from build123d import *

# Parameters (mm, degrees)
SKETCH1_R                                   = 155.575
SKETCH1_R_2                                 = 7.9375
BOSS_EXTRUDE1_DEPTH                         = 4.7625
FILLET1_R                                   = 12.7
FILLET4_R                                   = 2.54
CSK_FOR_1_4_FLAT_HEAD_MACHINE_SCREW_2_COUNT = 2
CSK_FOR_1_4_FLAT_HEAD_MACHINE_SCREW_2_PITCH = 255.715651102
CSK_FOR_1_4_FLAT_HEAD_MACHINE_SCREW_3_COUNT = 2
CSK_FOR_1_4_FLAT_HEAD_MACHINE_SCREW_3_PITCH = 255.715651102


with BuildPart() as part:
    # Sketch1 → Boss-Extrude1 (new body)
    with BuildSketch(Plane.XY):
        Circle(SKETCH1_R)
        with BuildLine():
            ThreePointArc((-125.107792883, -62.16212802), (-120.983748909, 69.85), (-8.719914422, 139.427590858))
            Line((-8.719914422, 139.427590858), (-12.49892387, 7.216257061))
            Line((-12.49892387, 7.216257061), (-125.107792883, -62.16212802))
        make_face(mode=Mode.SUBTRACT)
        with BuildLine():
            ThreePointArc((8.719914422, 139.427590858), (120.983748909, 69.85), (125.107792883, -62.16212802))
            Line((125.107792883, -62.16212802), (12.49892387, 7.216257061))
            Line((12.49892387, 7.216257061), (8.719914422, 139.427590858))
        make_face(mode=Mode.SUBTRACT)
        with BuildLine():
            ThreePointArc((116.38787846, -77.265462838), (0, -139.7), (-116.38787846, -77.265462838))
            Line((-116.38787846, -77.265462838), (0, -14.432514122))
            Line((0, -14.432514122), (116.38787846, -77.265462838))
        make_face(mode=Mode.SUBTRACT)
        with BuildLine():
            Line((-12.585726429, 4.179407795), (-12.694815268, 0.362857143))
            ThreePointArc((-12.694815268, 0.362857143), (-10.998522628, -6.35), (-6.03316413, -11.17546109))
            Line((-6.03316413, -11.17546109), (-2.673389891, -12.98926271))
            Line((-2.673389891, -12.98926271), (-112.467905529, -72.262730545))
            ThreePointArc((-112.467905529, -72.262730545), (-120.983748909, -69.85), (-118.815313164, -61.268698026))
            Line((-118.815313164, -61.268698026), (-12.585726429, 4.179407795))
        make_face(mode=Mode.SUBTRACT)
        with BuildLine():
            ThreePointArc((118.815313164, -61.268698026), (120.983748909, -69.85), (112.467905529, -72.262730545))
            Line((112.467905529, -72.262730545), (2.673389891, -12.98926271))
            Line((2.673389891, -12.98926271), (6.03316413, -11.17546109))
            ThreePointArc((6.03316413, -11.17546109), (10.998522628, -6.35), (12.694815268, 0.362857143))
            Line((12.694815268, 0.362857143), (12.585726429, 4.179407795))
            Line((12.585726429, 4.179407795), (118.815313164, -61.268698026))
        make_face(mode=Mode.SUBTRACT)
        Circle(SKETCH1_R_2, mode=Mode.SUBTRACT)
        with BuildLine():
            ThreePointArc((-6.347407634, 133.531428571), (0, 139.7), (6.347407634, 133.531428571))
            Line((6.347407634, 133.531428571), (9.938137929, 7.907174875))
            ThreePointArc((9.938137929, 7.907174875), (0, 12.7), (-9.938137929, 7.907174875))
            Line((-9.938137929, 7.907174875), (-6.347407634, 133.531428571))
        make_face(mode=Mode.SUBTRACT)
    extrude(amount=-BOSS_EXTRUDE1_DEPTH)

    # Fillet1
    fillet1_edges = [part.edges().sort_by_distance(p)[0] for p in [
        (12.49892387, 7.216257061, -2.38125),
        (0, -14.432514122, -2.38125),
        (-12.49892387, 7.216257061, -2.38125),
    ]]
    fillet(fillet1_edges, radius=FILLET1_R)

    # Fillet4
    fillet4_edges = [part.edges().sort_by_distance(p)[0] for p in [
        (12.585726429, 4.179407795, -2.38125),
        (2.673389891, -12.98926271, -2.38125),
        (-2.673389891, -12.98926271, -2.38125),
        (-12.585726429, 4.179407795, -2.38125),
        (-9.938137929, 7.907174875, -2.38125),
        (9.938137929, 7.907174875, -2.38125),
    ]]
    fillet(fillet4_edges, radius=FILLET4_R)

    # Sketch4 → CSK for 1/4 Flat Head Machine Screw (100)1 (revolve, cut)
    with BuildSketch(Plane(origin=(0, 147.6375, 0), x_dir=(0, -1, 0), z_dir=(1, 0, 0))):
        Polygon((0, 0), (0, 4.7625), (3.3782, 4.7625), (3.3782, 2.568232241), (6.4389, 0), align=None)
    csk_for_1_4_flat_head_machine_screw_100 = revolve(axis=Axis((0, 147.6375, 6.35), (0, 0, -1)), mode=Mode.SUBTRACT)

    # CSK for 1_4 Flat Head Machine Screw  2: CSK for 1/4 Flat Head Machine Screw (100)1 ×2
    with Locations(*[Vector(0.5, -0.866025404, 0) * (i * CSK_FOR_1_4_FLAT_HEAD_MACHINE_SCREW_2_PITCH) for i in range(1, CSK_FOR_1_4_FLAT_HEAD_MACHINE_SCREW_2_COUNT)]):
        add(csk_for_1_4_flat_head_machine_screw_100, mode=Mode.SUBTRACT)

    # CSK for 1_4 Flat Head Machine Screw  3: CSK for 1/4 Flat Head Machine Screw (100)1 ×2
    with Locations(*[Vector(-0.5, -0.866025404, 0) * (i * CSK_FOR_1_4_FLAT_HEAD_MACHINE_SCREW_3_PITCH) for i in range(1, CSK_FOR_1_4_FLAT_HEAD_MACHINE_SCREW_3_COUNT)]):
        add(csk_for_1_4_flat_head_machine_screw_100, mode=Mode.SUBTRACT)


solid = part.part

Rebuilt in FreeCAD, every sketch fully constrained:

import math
import FreeCAD as App
import Part
import Sketcher
Q = App.Units.Quantity


def edges_at(feature, points):
    """Names of the edges that pass closest to the given points."""
    edges = feature.Shape.Edges
    near = lambda p: min(range(len(edges)), key=lambda i: edges[i].distToShape(Part.Vertex(*p))[0])
    return sorted({f"Edge{near(p) + 1}" for p in points})

doc = App.newDocument("Part")
params = doc.addObject("Spreadsheet::Sheet", "Params")
for row, (alias, value) in enumerate([
    ("sketch1_radius", "0.5 in"),
    ("sketch1_radius2", "5.5 in"),
    ("sketch1_diameter", "12.25 in"),
    ("sketch1_radius3", "0.25 in"),
    ("sketch1_diameter2", "0.625 in"),
    ("pad1_length", "0.1875 in"),
    ("fillet_radius", "0.5 in"),
    ("fillet2_radius", "0.1 in"),
    ("sketch2_width", "0.133 in"),
    ("sketch2_height", "0.1875 in"),
    ("groove_angle", "360 deg"),
    ("linearpattern_pitch", "255.715651 mm"),
    ("linearpattern2_pitch", "255.715651 mm"),
], start=1):
    params.set(f"A{row}", alias)
    params.set(f"B{row}", "=" + value)
    params.setAlias(f"B{row}", alias)

body = doc.addObject("PartDesign::Body", "Body")

# Sketch on XY plane
sketch1 = doc.addObject("Sketcher::SketchObject", "Sketch")
body.addObject(sketch1)
sketch1.AttachmentSupport = (doc.XY_Plane, [""])
sketch1.MapMode = "FlatFace"
sketch1.addGeometry([
    Part.Circle(App.Vector(0, 0, 0), App.Vector(0, 0, 1), 155.575),  # 0
    Part.LineSegment(App.Vector(-118.815313, -61.268698, 0), App.Vector(-12.585726, 4.179408, 0)),  # 1
    Part.LineSegment(App.Vector(-12.585726, 4.179408, 0), App.Vector(-12.694815, 0.362857, 0)),  # 2
    Part.ArcOfCircle(Part.Circle(App.Vector(0, 0, 0), App.Vector(0, 0, 1), 12.7), math.radians(178.362755), math.radians(241.637245)),  # 3
    Part.LineSegment(App.Vector(-6.033164, -11.175461, 0), App.Vector(-2.67339, -12.989263, 0)),  # 4
    Part.LineSegment(App.Vector(-2.67339, -12.989263, 0), App.Vector(-112.467906, -72.262731, 0)),  # 5
    Part.ArcOfCircle(Part.Circle(App.Vector(-115.484488, -66.675, 0), App.Vector(0, 0, 1), 6.35), math.radians(121.637245), math.radians(298.362755)),  # 6
    Part.LineSegment(App.Vector(0, -14.432514, 0), App.Vector(116.387878, -77.265463, 0)),  # 7
    Part.ArcOfCircle(Part.Circle(App.Vector(0, 0, 0), App.Vector(0, 0, 1), 139.7), math.radians(-146.421337), math.radians(-33.578663)),  # 8
    Part.LineSegment(App.Vector(-116.387878, -77.265463, 0), App.Vector(0, -14.432514, 0)),  # 9
    Part.LineSegment(App.Vector(12.585726, 4.179408, 0), App.Vector(118.815313, -61.268698, 0)),  # 10
    Part.ArcOfCircle(Part.Circle(App.Vector(115.484488, -66.675, 0), App.Vector(0, 0, 1), 6.35), math.radians(-118.362755), math.radians(58.362755)),  # 11
    Part.LineSegment(App.Vector(112.467906, -72.262731, 0), App.Vector(2.67339, -12.989263, 0)),  # 12
    Part.LineSegment(App.Vector(2.67339, -12.989263, 0), App.Vector(6.033164, -11.175461, 0)),  # 13
    Part.ArcOfCircle(Part.Circle(App.Vector(0, 0, 0), App.Vector(0, 0, 1), 12.7), math.radians(-61.637245), math.radians(1.637245)),  # 14
    Part.LineSegment(App.Vector(12.694815, 0.362857, 0), App.Vector(12.585726, 4.179408, 0)),  # 15
    Part.LineSegment(App.Vector(-12.498924, 7.216257, 0), App.Vector(-125.107793, -62.162128, 0)),  # 16
    Part.ArcOfCircle(Part.Circle(App.Vector(0, 0, 0), App.Vector(0, 0, 1), 139.7), math.radians(93.578663), math.radians(206.421337)),  # 17
    Part.LineSegment(App.Vector(-8.719914, 139.427591, 0), App.Vector(-12.498924, 7.216257, 0)),  # 18
    Part.Circle(App.Vector(0, 0, 0), App.Vector(0, 0, 1), 7.9375),  # 19
    Part.LineSegment(App.Vector(12.498924, 7.216257, 0), App.Vector(8.719914, 139.427591, 0)),  # 20
    Part.ArcOfCircle(Part.Circle(App.Vector(0, 0, 0), App.Vector(0, 0, 1), 139.7), math.radians(-26.421337), math.radians(86.421337)),  # 21
    Part.LineSegment(App.Vector(125.107793, -62.162128, 0), App.Vector(12.498924, 7.216257, 0)),  # 22
    Part.LineSegment(App.Vector(-9.938138, 7.907175, 0), App.Vector(-6.347408, 133.531429, 0)),  # 23
    Part.ArcOfCircle(Part.Circle(App.Vector(0, 133.35, 0), App.Vector(0, 0, 1), 6.35), math.radians(1.637245), math.radians(178.362755)),  # 24
    Part.LineSegment(App.Vector(6.347408, 133.531429, 0), App.Vector(9.938138, 7.907175, 0)),  # 25
    Part.ArcOfCircle(Part.Circle(App.Vector(0, 0, 0), App.Vector(0, 0, 1), 12.7), math.radians(38.507143), math.radians(141.492857)),  # 26
], False)
sketch1.addConstraint([
    Sketcher.Constraint("Coincident", 1, 2, 2, 1),
    Sketcher.Constraint("Tangent", 2, 2, 3, 1),
    Sketcher.Constraint("Tangent", 3, 2, 4, 1),
    Sketcher.Constraint("Coincident", 4, 2, 5, 1),
    Sketcher.Constraint("Tangent", 5, 2, 6, 2),
    Sketcher.Constraint("Tangent", 6, 1, 1, 1),
    Sketcher.Constraint("Coincident", 7, 2, 8, 2),
    Sketcher.Constraint("Coincident", 8, 1, 9, 1),
    Sketcher.Constraint("Coincident", 9, 2, 7, 1),
    Sketcher.Constraint("Tangent", 10, 2, 11, 2),
    Sketcher.Constraint("Tangent", 11, 1, 12, 1),
    Sketcher.Constraint("Coincident", 12, 2, 13, 1),
    Sketcher.Constraint("Tangent", 13, 2, 14, 1),
    Sketcher.Constraint("Tangent", 14, 2, 15, 1),
    Sketcher.Constraint("Coincident", 15, 2, 10, 1),
    Sketcher.Constraint("Coincident", 16, 2, 17, 2),
    Sketcher.Constraint("Coincident", 17, 1, 18, 1),
    Sketcher.Constraint("Coincident", 18, 2, 16, 1),
    Sketcher.Constraint("Coincident", 20, 2, 21, 2),
    Sketcher.Constraint("Coincident", 21, 1, 22, 1),
    Sketcher.Constraint("Coincident", 22, 2, 20, 1),
    Sketcher.Constraint("Tangent", 23, 2, 24, 2),
    Sketcher.Constraint("Tangent", 24, 1, 25, 1),
    Sketcher.Constraint("Coincident", 25, 2, 26, 1),
    Sketcher.Constraint("Coincident", 26, 2, 23, 1),
    Sketcher.Constraint("Coincident", 0, 3, -1, 1),
    Sketcher.Constraint("Coincident", 3, 3, -1, 1),
    Sketcher.Constraint("Coincident", 8, 3, -1, 1),
    Sketcher.Constraint("Coincident", 14, 3, -1, 1),
    Sketcher.Constraint("Coincident", 17, 3, -1, 1),
    Sketcher.Constraint("Coincident", 19, 3, -1, 1),
    Sketcher.Constraint("Coincident", 21, 3, -1, 1),
    Sketcher.Constraint("Coincident", 26, 3, -1, 1),
    Sketcher.Constraint("Equal", 6, 11),
    Sketcher.Constraint("Equal", 3, 14),
    Sketcher.Constraint("Equal", 8, 17),
    Sketcher.Constraint("Equal", 17, 21),
    Sketcher.Constraint("Equal", 11, 24),
    Sketcher.Constraint("Equal", 14, 26),
    Sketcher.Constraint("Symmetric", 6, 3, 11, 3, -2),
    Sketcher.Constraint("Symmetric", 4, 2, 12, 2, -2),
    Sketcher.Constraint("Symmetric", 1, 2, 15, 2, -2),
    Sketcher.Constraint("Symmetric", 18, 2, 22, 2, -2),
    Sketcher.Constraint("Symmetric", 23, 2, 24, 1, -2),
    Sketcher.Constraint("PointOnObject", 9, 2, -2),
    Sketcher.Constraint("Parallel", 4, 7),
    Sketcher.Constraint("Parallel", 5, 9),
    Sketcher.Constraint("Parallel", 7, 12),
    Sketcher.Constraint("Parallel", 1, 16),
    Sketcher.Constraint("Parallel", 2, 18),
    Sketcher.Constraint("Parallel", 15, 20),
    Sketcher.Constraint("Parallel", 10, 22),
    Sketcher.Constraint("Parallel", 18, 23),
    Sketcher.Constraint("Equal", 2, 4),
    Sketcher.Constraint("Equal", 1, 5),
    Sketcher.Constraint("Equal", 9, 16),
    Sketcher.Constraint("Equal", 16, 18),
    Sketcher.Constraint("Radius", 3, Q("0.5 in")),
    Sketcher.Constraint("Radius", 8, Q("5.5 in")),
    Sketcher.Constraint("Diameter", 0, Q("12.25 in")),
    Sketcher.Constraint("Radius", 6, Q("0.25 in")),
    Sketcher.Constraint("Diameter", 19, Q("0.625 in")),
    Sketcher.Constraint("DistanceY", -1, 1, 24, 3, Q("5.25 in")),
    Sketcher.Constraint("DistanceY", 6, 3, -1, 1, Q("2.625 in")),
    Sketcher.Constraint("DistanceX", -1, 1, 7, 2, Q("4.5821999 in")),
    Sketcher.Constraint("DistanceY", 6, 1, -1, 1, Q("61.268698 mm")),
    Sketcher.Constraint("DistanceY", 4, 2, 3, 2, Q("1.813802 mm")),
])
sketch1.setExpression("Constraints[57]", "Params.sketch1_radius")
sketch1.setExpression("Constraints[58]", "Params.sketch1_radius2")
sketch1.setExpression("Constraints[59]", "Params.sketch1_diameter")
sketch1.setExpression("Constraints[60]", "Params.sketch1_radius3")
sketch1.setExpression("Constraints[61]", "Params.sketch1_diameter2")
pad1 = doc.addObject("PartDesign::Pad", "Pad")
body.addObject(pad1)
pad1.Profile = sketch1
pad1.setExpression("Length", "Params.pad1_length")
pad1.Reversed = True
doc.recompute()

fillet = doc.addObject("PartDesign::Fillet", "Fillet")
body.addObject(fillet)
fillet.Base = (pad1, edges_at(pad1, [(12.499, 7.216, -2.381), (0, -14.433, -2.381), (-12.499, 7.216, -2.381)]))
fillet.setExpression("Radius", "Params.fillet_radius")
doc.recompute()

fillet2 = doc.addObject("PartDesign::Fillet", "Fillet001")
body.addObject(fillet2)
fillet2.Base = (fillet, edges_at(fillet, [
    (12.586, 4.179, -2.381),
    (2.673, -12.989, -2.381),
    (-2.673, -12.989, -2.381),
    (-12.586, 4.179, -2.381),
    (-9.938, 7.907, -2.381),
    (9.938, 7.907, -2.381),
]))
fillet2.setExpression("Radius", "Params.fillet2_radius")

# Sketch on YZ plane
sketch2 = doc.addObject("Sketcher::SketchObject", "Sketch001")
body.addObject(sketch2)
sketch2.AttachmentSupport = (doc.YZ_Plane, [""])
sketch2.MapMode = "FlatFace"
sketch2.addGeometry([
    Part.LineSegment(App.Vector(147.6375, -4.7625, 0), App.Vector(147.6375, 0, 0)),  # 0
    Part.LineSegment(App.Vector(147.6375, 0, 0), App.Vector(141.1986, 0, 0)),  # 1
    Part.LineSegment(App.Vector(141.1986, 0, 0), App.Vector(144.2593, -2.568232, 0)),  # 2
    Part.LineSegment(App.Vector(144.2593, -2.568232, 0), App.Vector(144.2593, -4.7625, 0)),  # 3
    Part.LineSegment(App.Vector(144.2593, -4.7625, 0), App.Vector(147.6375, -4.7625, 0)),  # 4
], False)
sketch2.addGeometry(Part.LineSegment(App.Vector(147.6375, 0, 0), App.Vector(147.6375, -4.7625, 0)), True)  # axis
sketch2.addConstraint([
    Sketcher.Constraint("Coincident", 0, 2, 1, 1),
    Sketcher.Constraint("Coincident", 1, 2, 2, 1),
    Sketcher.Constraint("Coincident", 2, 2, 3, 1),
    Sketcher.Constraint("Coincident", 3, 2, 4, 1),
    Sketcher.Constraint("Coincident", 4, 2, 0, 1),
    Sketcher.Constraint("Vertical", 0),
    Sketcher.Constraint("Horizontal", 1),
    Sketcher.Constraint("Vertical", 3),
    Sketcher.Constraint("Horizontal", 4),
    Sketcher.Constraint("Vertical", 5),
    Sketcher.Constraint("Coincident", 5, 1, 0, 2),
    Sketcher.Constraint("PointOnObject", 0, 2, -1),
    Sketcher.Constraint("Horizontal", 3, 2, 5, 2),
    Sketcher.Constraint("Angle", 2, Q("-40 deg")),
    Sketcher.Constraint("DistanceX", 4, 1, 4, 2, Q("0.133 in")),
    Sketcher.Constraint("DistanceY", 0, 1, 0, 2, Q("0.1875 in")),
    Sketcher.Constraint("DistanceX", 1, 2, 1, 1, Q("0.2535 in")),
    Sketcher.Constraint("DistanceX", -1, 1, 0, 2, Q("5.8125 in")),
])
sketch2.setExpression("Constraints[14]", "Params.sketch2_width")
sketch2.setExpression("Constraints[15]", "Params.sketch2_height")
groove = doc.addObject("PartDesign::Groove", "Groove")
body.addObject(groove)
groove.Profile = sketch2
groove.ReferenceAxis = (sketch2, ["Axis0"])
groove.setExpression("Angle", "Params.groove_angle")
doc.recompute()

datumline = doc.addObject("PartDesign::Line", "DatumLine")
body.addObject(datumline)
datumline.Placement = App.Placement(App.Vector(0, 0, 0), App.Rotation(App.Vector(0, 0, 1), App.Vector(0.5, -0.866025404, 0)))
linearpattern = doc.addObject("PartDesign::LinearPattern", "LinearPattern")
body.addObject(linearpattern)
linearpattern.Originals = [groove]
linearpattern.Direction = (datumline, [""])
linearpattern.Mode = "offset"
linearpattern.setExpression("Offset", "Params.linearpattern_pitch")
linearpattern.Occurrences = 2
body.Tip = linearpattern
doc.recompute()

datumline2 = doc.addObject("PartDesign::Line", "DatumLine001")
body.addObject(datumline2)
datumline2.Placement = App.Placement(App.Vector(0, 0, 0), App.Rotation(App.Vector(0, 0, 1), App.Vector(-0.5, -0.866025404, 0)))
linearpattern2 = doc.addObject("PartDesign::LinearPattern", "LinearPattern001")
body.addObject(linearpattern2)
linearpattern2.Originals = [groove]
linearpattern2.Direction = (datumline2, [""])
linearpattern2.Mode = "offset"
linearpattern2.setExpression("Offset", "Params.linearpattern2_pitch")
linearpattern2.Occurrences = 2
body.Tip = linearpattern2

doc.recompute()
